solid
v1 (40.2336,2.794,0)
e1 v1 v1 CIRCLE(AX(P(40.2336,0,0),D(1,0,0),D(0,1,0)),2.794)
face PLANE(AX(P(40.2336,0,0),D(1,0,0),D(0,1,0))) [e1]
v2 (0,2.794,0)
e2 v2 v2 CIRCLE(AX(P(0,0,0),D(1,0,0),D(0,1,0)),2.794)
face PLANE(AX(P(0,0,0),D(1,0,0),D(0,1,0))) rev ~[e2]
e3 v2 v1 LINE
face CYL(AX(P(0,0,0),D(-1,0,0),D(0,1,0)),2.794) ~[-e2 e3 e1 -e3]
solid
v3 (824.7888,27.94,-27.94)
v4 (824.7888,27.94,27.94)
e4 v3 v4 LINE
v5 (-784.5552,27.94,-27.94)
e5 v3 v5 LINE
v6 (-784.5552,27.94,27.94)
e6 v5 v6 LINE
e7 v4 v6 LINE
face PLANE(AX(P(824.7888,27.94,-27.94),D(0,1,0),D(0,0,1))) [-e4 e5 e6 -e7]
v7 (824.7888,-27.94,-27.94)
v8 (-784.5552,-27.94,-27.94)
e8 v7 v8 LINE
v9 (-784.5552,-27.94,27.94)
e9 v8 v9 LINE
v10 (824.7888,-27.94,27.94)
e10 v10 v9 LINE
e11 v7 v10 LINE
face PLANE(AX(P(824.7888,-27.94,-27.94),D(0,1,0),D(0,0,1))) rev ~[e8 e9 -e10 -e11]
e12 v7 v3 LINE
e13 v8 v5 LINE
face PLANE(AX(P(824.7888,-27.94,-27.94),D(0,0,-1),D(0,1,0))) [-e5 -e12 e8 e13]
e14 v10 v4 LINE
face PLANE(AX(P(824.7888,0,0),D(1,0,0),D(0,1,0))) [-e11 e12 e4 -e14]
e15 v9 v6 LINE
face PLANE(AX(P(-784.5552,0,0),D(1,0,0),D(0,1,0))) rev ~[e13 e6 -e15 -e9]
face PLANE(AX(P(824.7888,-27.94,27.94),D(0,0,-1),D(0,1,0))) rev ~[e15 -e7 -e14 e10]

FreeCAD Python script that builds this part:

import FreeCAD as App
import Part
import Sketcher
from FreeCAD import Vector
Q = App.Units.Quantity


def add_polygon(sketch, points):
    """Adds a closed chain of lines whose ends are joined by coincident constraints."""
    first, n = sketch.GeometryCount, len(points)
    for a, b in zip(points, points[1:] + points[:1]):
        sketch.addGeometry(Part.LineSegment(App.Vector(*a, 0), App.Vector(*b, 0)), False)
    for i in range(n):
        sketch.addConstraint(Sketcher.Constraint("Coincident", first + i, 2, first + (i + 1) % n, 1))

doc = App.newDocument("Part")
body = doc.addObject("PartDesign::Body", "Body")

# Sketch on YZ plane
sketch1 = doc.addObject("Sketcher::SketchObject", "Sketch")
body.addObject(sketch1)
sketch1.AttachmentSupport = (doc.YZ_Plane, [""])
sketch1.MapMode = "FlatFace"
sketch1.addGeometry(Part.Circle(Vector(0, 0, 0), Vector(0, 0, 1), 2.8), False)
sketch1.addConstraint(Sketcher.Constraint("Coincident", 0, 3, -1, 1))
sketch1.addConstraint(Sketcher.Constraint("Diameter", 0, Q("0.22 in")))
pad1 = doc.addObject("PartDesign::Pad", "Pad")
body.addObject(pad1)
pad1.Profile = sketch1
pad1.Length = Q("1.584 in")
body2 = doc.addObject("PartDesign::Body", "Body001")

# Sketch on YZ plane
sketch2 = doc.addObject("Sketcher::SketchObject", "Sketch001")
body2.addObject(sketch2)
sketch2.AttachmentSupport = (doc.getObject("YZ_Plane001"), [""])
sketch2.MapMode = "FlatFace"
sketch2.AttachmentOffset = App.Placement(Vector(0, 0, 32.472 * 25.4), App.Rotation())
add_polygon(sketch2, [(-28, 28), (-28, -28), (28, -28), (28, 28)])  # lines 0-3
sketch2.addConstraint(Sketcher.Constraint("Vertical", 0))
sketch2.addConstraint(Sketcher.Constraint("Horizontal", 1))
sketch2.addConstraint(Sketcher.Constraint("Vertical", 2))
sketch2.addConstraint(Sketcher.Constraint("Horizontal", 3))
sketch2.addConstraint(Sketcher.Constraint("Symmetric", 0, 2, 2, 2, -1, 1))
sketch2.addConstraint(Sketcher.Constraint("Equal", 3, 0))
sketch2.addConstraint(Sketcher.Constraint("DistanceX", 1, 1, 1, 2, Q("2.2 in")))
pad2 = doc.addObject("PartDesign::Pad", "Pad001")
body2.addObject(pad2)
pad2.Profile = sketch2
pad2.Length = Q("63.36 in")
pad2.Reversed = True

doc.recompute()
